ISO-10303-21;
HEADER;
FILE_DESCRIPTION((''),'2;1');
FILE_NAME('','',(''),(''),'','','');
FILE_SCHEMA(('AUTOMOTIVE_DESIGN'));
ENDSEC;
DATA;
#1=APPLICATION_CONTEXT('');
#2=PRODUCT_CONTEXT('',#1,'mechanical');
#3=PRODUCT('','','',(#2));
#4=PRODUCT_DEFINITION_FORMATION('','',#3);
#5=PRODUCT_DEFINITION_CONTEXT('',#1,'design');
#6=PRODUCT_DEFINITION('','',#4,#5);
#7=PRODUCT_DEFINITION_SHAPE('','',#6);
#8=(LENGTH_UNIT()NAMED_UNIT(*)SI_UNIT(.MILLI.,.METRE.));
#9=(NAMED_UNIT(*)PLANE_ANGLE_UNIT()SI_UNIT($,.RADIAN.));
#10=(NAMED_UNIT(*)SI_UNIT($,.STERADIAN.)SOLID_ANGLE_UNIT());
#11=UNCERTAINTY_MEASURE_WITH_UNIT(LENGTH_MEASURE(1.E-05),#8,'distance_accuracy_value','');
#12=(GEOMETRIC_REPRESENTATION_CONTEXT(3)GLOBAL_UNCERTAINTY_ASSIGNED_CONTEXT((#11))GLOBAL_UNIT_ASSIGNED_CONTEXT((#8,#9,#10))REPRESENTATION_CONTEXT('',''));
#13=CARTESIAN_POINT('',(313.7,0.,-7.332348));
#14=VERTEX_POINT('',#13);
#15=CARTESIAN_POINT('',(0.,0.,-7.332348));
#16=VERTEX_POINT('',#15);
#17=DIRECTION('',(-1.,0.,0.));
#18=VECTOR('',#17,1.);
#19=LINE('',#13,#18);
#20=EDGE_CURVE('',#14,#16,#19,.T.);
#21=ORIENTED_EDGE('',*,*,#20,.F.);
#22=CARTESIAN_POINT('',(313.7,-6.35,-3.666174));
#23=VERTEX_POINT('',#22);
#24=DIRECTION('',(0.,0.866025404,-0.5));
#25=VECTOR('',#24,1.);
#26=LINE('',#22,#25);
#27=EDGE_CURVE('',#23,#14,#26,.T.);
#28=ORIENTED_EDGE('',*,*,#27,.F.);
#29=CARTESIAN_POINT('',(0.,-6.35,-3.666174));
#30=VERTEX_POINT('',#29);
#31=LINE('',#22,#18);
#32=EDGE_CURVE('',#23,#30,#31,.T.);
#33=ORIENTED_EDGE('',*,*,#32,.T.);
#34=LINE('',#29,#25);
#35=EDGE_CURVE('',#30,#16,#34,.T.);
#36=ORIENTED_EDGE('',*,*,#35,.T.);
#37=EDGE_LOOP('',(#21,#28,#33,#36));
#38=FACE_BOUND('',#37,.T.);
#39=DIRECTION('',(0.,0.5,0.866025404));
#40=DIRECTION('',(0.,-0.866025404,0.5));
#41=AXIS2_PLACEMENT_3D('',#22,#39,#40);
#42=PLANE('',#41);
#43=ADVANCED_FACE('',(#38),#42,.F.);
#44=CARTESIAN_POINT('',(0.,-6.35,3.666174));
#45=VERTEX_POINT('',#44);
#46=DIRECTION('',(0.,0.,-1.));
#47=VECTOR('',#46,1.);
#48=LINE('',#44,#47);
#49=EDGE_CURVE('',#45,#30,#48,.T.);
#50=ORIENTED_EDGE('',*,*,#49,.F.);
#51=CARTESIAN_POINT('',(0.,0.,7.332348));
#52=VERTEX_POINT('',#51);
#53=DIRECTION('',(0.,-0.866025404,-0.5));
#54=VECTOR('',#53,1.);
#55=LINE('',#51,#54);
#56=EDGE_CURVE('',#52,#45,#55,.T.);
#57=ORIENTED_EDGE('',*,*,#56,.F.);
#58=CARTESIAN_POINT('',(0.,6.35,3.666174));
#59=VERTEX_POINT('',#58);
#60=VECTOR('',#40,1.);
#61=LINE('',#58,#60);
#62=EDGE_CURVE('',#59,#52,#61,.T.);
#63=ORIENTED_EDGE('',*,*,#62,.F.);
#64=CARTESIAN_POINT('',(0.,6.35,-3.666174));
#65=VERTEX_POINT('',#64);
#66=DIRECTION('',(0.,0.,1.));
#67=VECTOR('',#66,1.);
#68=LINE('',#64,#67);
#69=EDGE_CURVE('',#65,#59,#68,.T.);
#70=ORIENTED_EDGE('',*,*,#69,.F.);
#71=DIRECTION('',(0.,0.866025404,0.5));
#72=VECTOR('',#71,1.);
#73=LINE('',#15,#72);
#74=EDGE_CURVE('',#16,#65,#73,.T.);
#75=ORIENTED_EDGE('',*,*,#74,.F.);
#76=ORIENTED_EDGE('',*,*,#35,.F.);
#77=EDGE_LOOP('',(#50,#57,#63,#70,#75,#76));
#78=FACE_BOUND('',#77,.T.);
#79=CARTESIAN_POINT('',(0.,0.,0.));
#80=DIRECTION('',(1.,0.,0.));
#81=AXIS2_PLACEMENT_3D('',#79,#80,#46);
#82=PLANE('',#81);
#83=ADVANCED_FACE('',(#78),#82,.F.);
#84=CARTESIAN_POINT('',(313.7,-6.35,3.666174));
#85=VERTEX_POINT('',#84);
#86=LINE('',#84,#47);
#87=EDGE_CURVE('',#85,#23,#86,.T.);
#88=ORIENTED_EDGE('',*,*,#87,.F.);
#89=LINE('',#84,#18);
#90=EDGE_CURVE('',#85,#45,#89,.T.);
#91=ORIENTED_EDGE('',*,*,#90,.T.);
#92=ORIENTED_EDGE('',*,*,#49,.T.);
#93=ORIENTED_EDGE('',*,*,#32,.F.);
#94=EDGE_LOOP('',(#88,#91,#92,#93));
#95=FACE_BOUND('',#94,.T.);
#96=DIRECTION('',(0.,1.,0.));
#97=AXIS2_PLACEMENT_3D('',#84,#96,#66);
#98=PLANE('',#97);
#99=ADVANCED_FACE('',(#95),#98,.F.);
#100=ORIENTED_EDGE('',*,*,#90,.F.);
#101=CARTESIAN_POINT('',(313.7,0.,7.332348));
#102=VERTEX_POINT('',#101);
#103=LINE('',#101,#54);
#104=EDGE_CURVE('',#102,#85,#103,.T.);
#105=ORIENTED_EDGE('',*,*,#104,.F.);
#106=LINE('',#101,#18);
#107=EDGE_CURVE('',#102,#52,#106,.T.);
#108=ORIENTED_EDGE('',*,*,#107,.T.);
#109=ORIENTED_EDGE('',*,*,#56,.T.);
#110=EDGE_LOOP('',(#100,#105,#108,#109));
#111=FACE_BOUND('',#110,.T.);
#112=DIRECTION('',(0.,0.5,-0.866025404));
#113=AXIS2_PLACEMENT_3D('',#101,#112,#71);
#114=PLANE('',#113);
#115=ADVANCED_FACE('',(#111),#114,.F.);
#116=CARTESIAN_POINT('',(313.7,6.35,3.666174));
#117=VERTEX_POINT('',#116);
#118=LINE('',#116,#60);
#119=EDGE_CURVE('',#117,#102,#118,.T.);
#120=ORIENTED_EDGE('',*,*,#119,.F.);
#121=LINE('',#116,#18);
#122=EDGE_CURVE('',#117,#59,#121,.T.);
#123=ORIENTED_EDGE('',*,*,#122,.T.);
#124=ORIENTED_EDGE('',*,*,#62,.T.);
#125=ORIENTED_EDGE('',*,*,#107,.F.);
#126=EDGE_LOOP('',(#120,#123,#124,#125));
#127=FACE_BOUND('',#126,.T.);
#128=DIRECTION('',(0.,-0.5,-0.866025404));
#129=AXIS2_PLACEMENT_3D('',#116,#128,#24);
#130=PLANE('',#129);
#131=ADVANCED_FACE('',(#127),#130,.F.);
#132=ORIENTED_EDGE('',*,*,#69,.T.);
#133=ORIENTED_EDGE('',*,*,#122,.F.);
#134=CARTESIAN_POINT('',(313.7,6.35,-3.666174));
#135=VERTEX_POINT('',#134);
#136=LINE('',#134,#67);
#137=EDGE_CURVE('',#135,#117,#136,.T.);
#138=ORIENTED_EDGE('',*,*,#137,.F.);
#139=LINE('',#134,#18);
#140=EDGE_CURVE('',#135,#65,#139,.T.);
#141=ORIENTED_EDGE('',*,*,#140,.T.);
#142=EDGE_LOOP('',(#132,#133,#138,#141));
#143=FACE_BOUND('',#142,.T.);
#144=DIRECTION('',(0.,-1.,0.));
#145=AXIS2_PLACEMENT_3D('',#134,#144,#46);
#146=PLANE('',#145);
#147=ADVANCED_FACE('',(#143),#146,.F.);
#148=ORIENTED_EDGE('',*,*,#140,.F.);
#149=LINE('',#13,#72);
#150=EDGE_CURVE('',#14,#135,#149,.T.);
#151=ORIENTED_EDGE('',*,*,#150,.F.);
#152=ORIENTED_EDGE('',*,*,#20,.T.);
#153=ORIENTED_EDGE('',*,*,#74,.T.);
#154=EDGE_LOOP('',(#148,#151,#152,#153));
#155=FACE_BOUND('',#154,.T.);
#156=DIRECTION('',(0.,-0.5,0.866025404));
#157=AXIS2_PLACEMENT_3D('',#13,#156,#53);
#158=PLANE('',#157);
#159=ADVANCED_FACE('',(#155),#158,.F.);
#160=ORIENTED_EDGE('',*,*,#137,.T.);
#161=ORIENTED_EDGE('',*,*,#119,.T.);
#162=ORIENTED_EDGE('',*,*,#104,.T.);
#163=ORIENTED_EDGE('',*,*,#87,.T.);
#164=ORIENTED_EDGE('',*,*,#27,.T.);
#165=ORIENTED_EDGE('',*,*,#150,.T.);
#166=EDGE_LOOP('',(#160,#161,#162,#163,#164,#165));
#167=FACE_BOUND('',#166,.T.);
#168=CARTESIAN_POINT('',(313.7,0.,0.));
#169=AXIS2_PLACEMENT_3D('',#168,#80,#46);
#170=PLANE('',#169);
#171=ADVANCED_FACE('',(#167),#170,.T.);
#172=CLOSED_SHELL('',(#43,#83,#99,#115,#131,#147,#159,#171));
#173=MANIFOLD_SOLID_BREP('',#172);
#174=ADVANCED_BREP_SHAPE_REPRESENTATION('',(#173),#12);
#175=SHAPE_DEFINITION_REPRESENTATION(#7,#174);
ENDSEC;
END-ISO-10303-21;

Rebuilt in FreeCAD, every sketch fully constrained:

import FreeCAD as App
import Part
import Sketcher
from FreeCAD import Vector
Q = App.Units.Quantity

doc = App.newDocument("Part")
body = doc.addObject("PartDesign::Body", "Body")

# Sketch on YZ plane
sketch1 = body.newObject("Sketcher::SketchObject", "Sketch")
sketch1.AttachmentSupport = (doc.getObject("YZ_Plane"), [""])
sketch1.MapMode = "FlatFace"
sketch1.addGeometry([
    Part.LineSegment(Vector(0, -7.332348, 0), Vector(6.35, -3.666174, 0)),  # 0
    Part.LineSegment(Vector(6.35, -3.666174, 0), Vector(6.35, 3.666174, 0)),  # 1
    Part.LineSegment(Vector(6.35, 3.666174, 0), Vector(0, 7.332348, 0)),  # 2
    Part.LineSegment(Vector(0, 7.332348, 0), Vector(-6.35, 3.666174, 0)),  # 3
    Part.LineSegment(Vector(-6.35, 3.666174, 0), Vector(-6.35, -3.666174, 0)),  # 4
    Part.LineSegment(Vector(-6.35, -3.666174, 0), Vector(0, -7.332348, 0)),  # 5
], False)
sketch1.addConstraint([
    Sketcher.Constraint("Coincident", 0, 2, 1, 1),
    Sketcher.Constraint("Coincident", 1, 2, 2, 1),
    Sketcher.Constraint("Coincident", 2, 2, 3, 1),
    Sketcher.Constraint("Coincident", 3, 2, 4, 1),
    Sketcher.Constraint("Coincident", 4, 2, 5, 1),
    Sketcher.Constraint("Coincident", 5, 2, 0, 1),
    Sketcher.Constraint("Vertical", 1),
    Sketcher.Constraint("Vertical", 4),
    Sketcher.Constraint("Symmetric", 0, 2, 3, 2, -1, 1),
    Sketcher.Constraint("Symmetric", 2, 2, 5, 2, -1, 1),
    Sketcher.Constraint("PointOnObject", 2, 2, -2),
    Sketcher.Constraint("Parallel", 2, 5),
    Sketcher.Constraint("Horizontal", 1, 2, 3, 2),
    Sketcher.Constraint("Angle", 0, Q("30 deg")),
    Sketcher.Constraint("DistanceX", 3, 2, 1, 2, Q("12.7 mm")),
    Sketcher.Constraint("DistanceY", 1, 1, 1, 2, Q("7.332348 mm")),
])
pad1 = body.newObject("PartDesign::Pad", "Pad")
pad1.Profile = sketch1
pad1.Length = 313.7

doc.recompute()
